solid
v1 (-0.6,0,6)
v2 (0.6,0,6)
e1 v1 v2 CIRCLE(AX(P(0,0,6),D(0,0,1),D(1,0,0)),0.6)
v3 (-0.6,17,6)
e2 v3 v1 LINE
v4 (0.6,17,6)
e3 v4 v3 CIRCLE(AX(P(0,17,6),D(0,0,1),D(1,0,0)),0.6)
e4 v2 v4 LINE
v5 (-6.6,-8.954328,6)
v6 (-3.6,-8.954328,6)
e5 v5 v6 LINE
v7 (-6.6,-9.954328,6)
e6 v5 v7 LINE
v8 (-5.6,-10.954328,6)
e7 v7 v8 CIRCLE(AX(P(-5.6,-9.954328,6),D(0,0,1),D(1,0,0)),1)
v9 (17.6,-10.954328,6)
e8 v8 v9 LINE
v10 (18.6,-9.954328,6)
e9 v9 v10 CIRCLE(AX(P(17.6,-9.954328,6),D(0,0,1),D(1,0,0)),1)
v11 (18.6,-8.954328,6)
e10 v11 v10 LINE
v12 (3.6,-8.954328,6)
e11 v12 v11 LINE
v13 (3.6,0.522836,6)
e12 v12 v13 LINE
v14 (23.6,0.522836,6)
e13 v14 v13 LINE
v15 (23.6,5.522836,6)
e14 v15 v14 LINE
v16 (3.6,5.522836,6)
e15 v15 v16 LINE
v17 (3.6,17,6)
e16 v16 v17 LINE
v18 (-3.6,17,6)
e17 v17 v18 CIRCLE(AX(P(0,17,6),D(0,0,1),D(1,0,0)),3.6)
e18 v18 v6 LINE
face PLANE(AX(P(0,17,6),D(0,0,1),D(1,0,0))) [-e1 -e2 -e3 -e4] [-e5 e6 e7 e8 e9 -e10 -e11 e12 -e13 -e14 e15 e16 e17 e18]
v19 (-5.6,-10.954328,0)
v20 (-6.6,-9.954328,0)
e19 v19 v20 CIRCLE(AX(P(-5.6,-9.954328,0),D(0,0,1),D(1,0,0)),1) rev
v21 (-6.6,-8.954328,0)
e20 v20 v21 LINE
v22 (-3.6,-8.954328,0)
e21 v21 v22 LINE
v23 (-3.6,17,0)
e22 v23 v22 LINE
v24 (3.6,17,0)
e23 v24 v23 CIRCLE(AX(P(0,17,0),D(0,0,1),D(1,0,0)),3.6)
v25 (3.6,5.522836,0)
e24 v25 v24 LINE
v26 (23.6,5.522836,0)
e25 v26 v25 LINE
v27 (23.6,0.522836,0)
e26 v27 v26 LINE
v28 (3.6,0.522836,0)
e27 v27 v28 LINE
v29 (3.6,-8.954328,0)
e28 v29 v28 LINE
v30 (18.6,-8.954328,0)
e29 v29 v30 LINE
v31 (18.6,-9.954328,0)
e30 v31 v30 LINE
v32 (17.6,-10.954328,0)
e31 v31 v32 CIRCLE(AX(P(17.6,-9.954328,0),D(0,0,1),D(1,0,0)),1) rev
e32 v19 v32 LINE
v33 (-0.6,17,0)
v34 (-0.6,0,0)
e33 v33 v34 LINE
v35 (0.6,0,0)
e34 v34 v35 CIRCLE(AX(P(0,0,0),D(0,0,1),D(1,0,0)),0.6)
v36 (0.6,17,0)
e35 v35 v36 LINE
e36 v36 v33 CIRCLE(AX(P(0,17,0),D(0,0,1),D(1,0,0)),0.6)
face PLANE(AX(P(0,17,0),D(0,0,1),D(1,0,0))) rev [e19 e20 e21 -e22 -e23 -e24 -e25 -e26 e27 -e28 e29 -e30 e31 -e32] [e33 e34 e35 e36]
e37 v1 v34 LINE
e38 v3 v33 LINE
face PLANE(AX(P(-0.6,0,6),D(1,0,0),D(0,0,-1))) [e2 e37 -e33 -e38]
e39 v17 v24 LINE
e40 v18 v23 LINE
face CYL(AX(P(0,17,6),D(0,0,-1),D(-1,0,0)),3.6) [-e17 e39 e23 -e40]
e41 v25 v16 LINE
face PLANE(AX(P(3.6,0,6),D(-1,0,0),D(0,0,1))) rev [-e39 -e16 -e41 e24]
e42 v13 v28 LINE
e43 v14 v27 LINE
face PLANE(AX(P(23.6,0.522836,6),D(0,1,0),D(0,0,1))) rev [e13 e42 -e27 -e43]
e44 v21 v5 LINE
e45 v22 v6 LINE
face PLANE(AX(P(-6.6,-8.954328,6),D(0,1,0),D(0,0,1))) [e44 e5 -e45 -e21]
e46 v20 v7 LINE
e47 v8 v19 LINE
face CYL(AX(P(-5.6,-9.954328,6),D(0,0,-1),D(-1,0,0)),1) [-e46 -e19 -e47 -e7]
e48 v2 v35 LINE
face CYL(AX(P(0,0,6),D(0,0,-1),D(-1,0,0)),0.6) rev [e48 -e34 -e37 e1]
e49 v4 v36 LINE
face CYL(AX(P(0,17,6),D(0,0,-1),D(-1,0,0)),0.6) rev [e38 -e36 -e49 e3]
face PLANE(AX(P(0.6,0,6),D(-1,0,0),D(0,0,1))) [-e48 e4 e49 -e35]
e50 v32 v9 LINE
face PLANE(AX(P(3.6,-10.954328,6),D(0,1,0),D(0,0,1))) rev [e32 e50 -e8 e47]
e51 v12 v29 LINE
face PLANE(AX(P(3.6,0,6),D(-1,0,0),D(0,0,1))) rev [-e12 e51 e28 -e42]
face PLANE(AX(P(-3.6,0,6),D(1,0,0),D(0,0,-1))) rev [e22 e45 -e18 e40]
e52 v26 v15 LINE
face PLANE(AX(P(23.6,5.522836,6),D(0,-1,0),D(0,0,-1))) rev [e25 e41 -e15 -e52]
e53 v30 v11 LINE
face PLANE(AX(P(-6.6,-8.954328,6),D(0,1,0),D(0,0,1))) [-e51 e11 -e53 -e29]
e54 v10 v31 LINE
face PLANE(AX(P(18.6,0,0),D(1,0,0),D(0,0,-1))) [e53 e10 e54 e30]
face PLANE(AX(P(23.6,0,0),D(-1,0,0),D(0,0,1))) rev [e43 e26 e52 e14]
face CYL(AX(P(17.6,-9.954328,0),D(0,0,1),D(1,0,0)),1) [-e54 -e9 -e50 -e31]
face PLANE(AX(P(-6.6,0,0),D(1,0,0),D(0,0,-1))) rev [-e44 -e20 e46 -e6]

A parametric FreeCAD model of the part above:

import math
import FreeCAD as App
import Part
import Sketcher
Q = App.Units.Quantity


def edges_at(feature, points):
    """Names of the edges that pass closest to the given points."""
    edges = feature.Shape.Edges
    near = lambda p: min(range(len(edges)), key=lambda i: edges[i].distToShape(Part.Vertex(*p))[0])
    return sorted({f"Edge{near(p) + 1}" for p in points})

doc = App.newDocument("Part")
params = doc.addObject("Spreadsheet::Sheet", "Params")
for row, (alias, value) in enumerate([
    ("sketch1_radius", "3.6 mm"),
    ("sketch1_radius2", "0.6 mm"),
    ("sketch1_height", "17 mm"),
    ("pad1_length", "6 mm"),
    ("sketch2_width", "5 mm"),
    ("sketch2_height", "6 mm"),
    ("pad2_length", "20 mm"),
    ("sketch3_width", "2 mm"),
    ("sketch3_height", "6 mm"),
    ("pad3_length", "15 mm"),
    ("pad3_length2", "10.2 mm"),
    ("fillet_radius", "1 mm"),
], start=1):
    params.set(f"A{row}", alias)
    params.set(f"B{row}", "=" + value)
    params.setAlias(f"B{row}", alias)

body = doc.addObject("PartDesign::Body", "Body")

sketch1 = body.newObject("Sketcher::SketchObject", "Sketch")
sketch1.AttachmentSupport = (doc.getObject("XY_Plane"), [""])
sketch1.MapMode = "FlatFace"
sketch1.addGeometry(Part.ArcOfCircle(Part.Circle(App.Vector(0, 17, 0), App.Vector(0, 0, 1), 3.6), math.radians(0), math.radians(180)), False)
sketch1.addGeometry(Part.LineSegment(App.Vector(-3.6, 17, 0), App.Vector(-3.6, -11, 0)), False)
sketch1.addGeometry(Part.LineSegment(App.Vector(-3.6, -11, 0), App.Vector(3.6, -11, 0)), False)
sketch1.addGeometry(Part.LineSegment(App.Vector(3.6, -11, 0), App.Vector(3.6, 17, 0)), False)
sketch1.addGeometry(Part.LineSegment(App.Vector(-0.6, 0, 0), App.Vector(-0.6, 17, 0)), False)
sketch1.addGeometry(Part.ArcOfCircle(Part.Circle(App.Vector(0, 17, 0), App.Vector(0, 0, 1), 0.6), math.radians(0), math.radians(180)), False)
sketch1.addGeometry(Part.LineSegment(App.Vector(0.6, 17, 0), App.Vector(0.6, 0, 0)), False)
sketch1.addGeometry(Part.ArcOfCircle(Part.Circle(App.Vector(0, 0, 0), App.Vector(0, 0, 1), 0.6), math.radians(180), math.radians(360)), False)
sketch1.addConstraint(Sketcher.Constraint("Tangent", 0, 2, 1, 1))
sketch1.addConstraint(Sketcher.Constraint("Coincident", 1, 2, 2, 1))
sketch1.addConstraint(Sketcher.Constraint("Coincident", 2, 2, 3, 1))
sketch1.addConstraint(Sketcher.Constraint("Tangent", 3, 2, 0, 1))
sketch1.addConstraint(Sketcher.Constraint("Tangent", 4, 2, 5, 2))
sketch1.addConstraint(Sketcher.Constraint("Tangent", 5, 1, 6, 1))
sketch1.addConstraint(Sketcher.Constraint("Tangent", 6, 2, 7, 2))
sketch1.addConstraint(Sketcher.Constraint("Tangent", 7, 1, 4, 1))
sketch1.addConstraint(Sketcher.Constraint("Vertical", 1))
sketch1.addConstraint(Sketcher.Constraint("Horizontal", 2))
sketch1.addConstraint(Sketcher.Constraint("Vertical", 3))
sketch1.addConstraint(Sketcher.Constraint("Vertical", 4))
sketch1.addConstraint(Sketcher.Constraint("Vertical", 6))
sketch1.addConstraint(Sketcher.Constraint("Coincident", 7, 3, -1, 1))
sketch1.addConstraint(Sketcher.Constraint("Coincident", 5, 3, 0, 3))
sketch1.addConstraint(Sketcher.Constraint("Radius", 0, Q("3.6 mm")))
sketch1.addConstraint(Sketcher.Constraint("Radius", 5, Q("0.6 mm")))
sketch1.addConstraint(Sketcher.Constraint("DistanceY", 4, 1, 4, 2, Q("17 mm")))
sketch1.addConstraint(Sketcher.Constraint("DistanceY", 1, 2, 1, 1, Q("27.954328 mm")))
sketch1.setExpression("Constraints[15]", "Params.sketch1_radius")
sketch1.setExpression("Constraints[16]", "Params.sketch1_radius2")
sketch1.setExpression("Constraints[17]", "Params.sketch1_height")
pad1 = body.newObject("PartDesign::Pad", "Pad")
pad1.Profile = sketch1
pad1.setExpression("Length", "Params.pad1_length")

sketch2 = body.newObject("Sketcher::SketchObject", "Sketch001")
sketch2.AttachmentSupport = (doc.getObject("YZ_Plane"), [""])
sketch2.MapMode = "FlatFace"
sketch2.AttachmentOffset = App.Placement(App.Vector(0, 0, 3.6), App.Rotation())
sketch2.addGeometry(Part.LineSegment(App.Vector(6, 6, 0), App.Vector(1, 6, 0)), False)
sketch2.addGeometry(Part.LineSegment(App.Vector(1, 6, 0), App.Vector(1, 0, 0)), False)
sketch2.addGeometry(Part.LineSegment(App.Vector(1, 0, 0), App.Vector(6, 0, 0)), False)
sketch2.addGeometry(Part.LineSegment(App.Vector(6, 0, 0), App.Vector(6, 6, 0)), False)
sketch2.addConstraint(Sketcher.Constraint("Coincident", 0, 2, 1, 1))
sketch2.addConstraint(Sketcher.Constraint("Coincident", 1, 2, 2, 1))
sketch2.addConstraint(Sketcher.Constraint("Coincident", 2, 2, 3, 1))
sketch2.addConstraint(Sketcher.Constraint("Coincident", 3, 2, 0, 1))
sketch2.addConstraint(Sketcher.Constraint("Horizontal", 0))
sketch2.addConstraint(Sketcher.Constraint("Vertical", 1))
sketch2.addConstraint(Sketcher.Constraint("Horizontal", 2))
sketch2.addConstraint(Sketcher.Constraint("Vertical", 3))
sketch2.addConstraint(Sketcher.Constraint("PointOnObject", 1, 2, -1))
sketch2.addConstraint(Sketcher.Constraint("DistanceX", 0, 2, 0, 1, Q("5 mm")))
sketch2.addConstraint(Sketcher.Constraint("DistanceY", 1, 2, 1, 1, Q("6 mm")))
sketch2.addConstraint(Sketcher.Constraint("DistanceX", -1, 1, 0, 2, Q("0.522836 mm")))
sketch2.setExpression("Constraints[9]", "Params.sketch2_width")
sketch2.setExpression("Constraints[10]", "Params.sketch2_height")
pad2 = body.newObject("PartDesign::Pad", "Pad001")
pad2.Profile = sketch2
pad2.setExpression("Length", "Params.pad2_length")

sketch3 = body.newObject("Sketcher::SketchObject", "Sketch002")
sketch3.AttachmentSupport = (doc.getObject("YZ_Plane"), [""])
sketch3.MapMode = "FlatFace"
sketch3.AttachmentOffset = App.Placement(App.Vector(0, 0, 3.6), App.Rotation())
sketch3.addGeometry(Part.LineSegment(App.Vector(-9, 6, 0), App.Vector(-11, 6, 0)), False)
sketch3.addGeometry(Part.LineSegment(App.Vector(-11, 6, 0), App.Vector(-11, 0, 0)), False)
sketch3.addGeometry(Part.LineSegment(App.Vector(-11, 0, 0), App.Vector(-9, 0, 0)), False)
sketch3.addGeometry(Part.LineSegment(App.Vector(-9, 0, 0), App.Vector(-9, 6, 0)), False)
sketch3.addConstraint(Sketcher.Constraint("Coincident", 0, 2, 1, 1))
sketch3.addConstraint(Sketcher.Constraint("Coincident", 1, 2, 2, 1))
sketch3.addConstraint(Sketcher.Constraint("Coincident", 2, 2, 3, 1))
sketch3.addConstraint(Sketcher.Constraint("Coincident", 3, 2, 0, 1))
sketch3.addConstraint(Sketcher.Constraint("Horizontal", 0))
sketch3.addConstraint(Sketcher.Constraint("Vertical", 1))
sketch3.addConstraint(Sketcher.Constraint("Horizontal", 2))
sketch3.addConstraint(Sketcher.Constraint("Vertical", 3))
sketch3.addConstraint(Sketcher.Constraint("PointOnObject", 1, 2, -1))
sketch3.addConstraint(Sketcher.Constraint("DistanceX", 0, 2, 0, 1, Q("2 mm")))
sketch3.addConstraint(Sketcher.Constraint("DistanceY", 1, 2, 1, 1, Q("6 mm")))
sketch3.addConstraint(Sketcher.Constraint("DistanceX", 0, 2, -1, 1, Q("10.954328 mm")))
sketch3.setExpression("Constraints[9]", "Params.sketch3_width")
sketch3.setExpression("Constraints[10]", "Params.sketch3_height")
pad3 = body.newObject("PartDesign::Pad", "Pad002")
pad3.Profile = sketch3
pad3.Type = "TwoLengths"
pad3.setExpression("Length", "Params.pad3_length")
pad3.setExpression("Length2", "Params.pad3_length2")
doc.recompute()

fillet = body.newObject("PartDesign::Fillet", "Fillet")
fillet.Base = (pad3, edges_at(pad3, [(-6.6, -10.954, 3), (18.6, -10.954, 3)]))
fillet.setExpression("Radius", "Params.fillet_radius")

doc.recompute()
